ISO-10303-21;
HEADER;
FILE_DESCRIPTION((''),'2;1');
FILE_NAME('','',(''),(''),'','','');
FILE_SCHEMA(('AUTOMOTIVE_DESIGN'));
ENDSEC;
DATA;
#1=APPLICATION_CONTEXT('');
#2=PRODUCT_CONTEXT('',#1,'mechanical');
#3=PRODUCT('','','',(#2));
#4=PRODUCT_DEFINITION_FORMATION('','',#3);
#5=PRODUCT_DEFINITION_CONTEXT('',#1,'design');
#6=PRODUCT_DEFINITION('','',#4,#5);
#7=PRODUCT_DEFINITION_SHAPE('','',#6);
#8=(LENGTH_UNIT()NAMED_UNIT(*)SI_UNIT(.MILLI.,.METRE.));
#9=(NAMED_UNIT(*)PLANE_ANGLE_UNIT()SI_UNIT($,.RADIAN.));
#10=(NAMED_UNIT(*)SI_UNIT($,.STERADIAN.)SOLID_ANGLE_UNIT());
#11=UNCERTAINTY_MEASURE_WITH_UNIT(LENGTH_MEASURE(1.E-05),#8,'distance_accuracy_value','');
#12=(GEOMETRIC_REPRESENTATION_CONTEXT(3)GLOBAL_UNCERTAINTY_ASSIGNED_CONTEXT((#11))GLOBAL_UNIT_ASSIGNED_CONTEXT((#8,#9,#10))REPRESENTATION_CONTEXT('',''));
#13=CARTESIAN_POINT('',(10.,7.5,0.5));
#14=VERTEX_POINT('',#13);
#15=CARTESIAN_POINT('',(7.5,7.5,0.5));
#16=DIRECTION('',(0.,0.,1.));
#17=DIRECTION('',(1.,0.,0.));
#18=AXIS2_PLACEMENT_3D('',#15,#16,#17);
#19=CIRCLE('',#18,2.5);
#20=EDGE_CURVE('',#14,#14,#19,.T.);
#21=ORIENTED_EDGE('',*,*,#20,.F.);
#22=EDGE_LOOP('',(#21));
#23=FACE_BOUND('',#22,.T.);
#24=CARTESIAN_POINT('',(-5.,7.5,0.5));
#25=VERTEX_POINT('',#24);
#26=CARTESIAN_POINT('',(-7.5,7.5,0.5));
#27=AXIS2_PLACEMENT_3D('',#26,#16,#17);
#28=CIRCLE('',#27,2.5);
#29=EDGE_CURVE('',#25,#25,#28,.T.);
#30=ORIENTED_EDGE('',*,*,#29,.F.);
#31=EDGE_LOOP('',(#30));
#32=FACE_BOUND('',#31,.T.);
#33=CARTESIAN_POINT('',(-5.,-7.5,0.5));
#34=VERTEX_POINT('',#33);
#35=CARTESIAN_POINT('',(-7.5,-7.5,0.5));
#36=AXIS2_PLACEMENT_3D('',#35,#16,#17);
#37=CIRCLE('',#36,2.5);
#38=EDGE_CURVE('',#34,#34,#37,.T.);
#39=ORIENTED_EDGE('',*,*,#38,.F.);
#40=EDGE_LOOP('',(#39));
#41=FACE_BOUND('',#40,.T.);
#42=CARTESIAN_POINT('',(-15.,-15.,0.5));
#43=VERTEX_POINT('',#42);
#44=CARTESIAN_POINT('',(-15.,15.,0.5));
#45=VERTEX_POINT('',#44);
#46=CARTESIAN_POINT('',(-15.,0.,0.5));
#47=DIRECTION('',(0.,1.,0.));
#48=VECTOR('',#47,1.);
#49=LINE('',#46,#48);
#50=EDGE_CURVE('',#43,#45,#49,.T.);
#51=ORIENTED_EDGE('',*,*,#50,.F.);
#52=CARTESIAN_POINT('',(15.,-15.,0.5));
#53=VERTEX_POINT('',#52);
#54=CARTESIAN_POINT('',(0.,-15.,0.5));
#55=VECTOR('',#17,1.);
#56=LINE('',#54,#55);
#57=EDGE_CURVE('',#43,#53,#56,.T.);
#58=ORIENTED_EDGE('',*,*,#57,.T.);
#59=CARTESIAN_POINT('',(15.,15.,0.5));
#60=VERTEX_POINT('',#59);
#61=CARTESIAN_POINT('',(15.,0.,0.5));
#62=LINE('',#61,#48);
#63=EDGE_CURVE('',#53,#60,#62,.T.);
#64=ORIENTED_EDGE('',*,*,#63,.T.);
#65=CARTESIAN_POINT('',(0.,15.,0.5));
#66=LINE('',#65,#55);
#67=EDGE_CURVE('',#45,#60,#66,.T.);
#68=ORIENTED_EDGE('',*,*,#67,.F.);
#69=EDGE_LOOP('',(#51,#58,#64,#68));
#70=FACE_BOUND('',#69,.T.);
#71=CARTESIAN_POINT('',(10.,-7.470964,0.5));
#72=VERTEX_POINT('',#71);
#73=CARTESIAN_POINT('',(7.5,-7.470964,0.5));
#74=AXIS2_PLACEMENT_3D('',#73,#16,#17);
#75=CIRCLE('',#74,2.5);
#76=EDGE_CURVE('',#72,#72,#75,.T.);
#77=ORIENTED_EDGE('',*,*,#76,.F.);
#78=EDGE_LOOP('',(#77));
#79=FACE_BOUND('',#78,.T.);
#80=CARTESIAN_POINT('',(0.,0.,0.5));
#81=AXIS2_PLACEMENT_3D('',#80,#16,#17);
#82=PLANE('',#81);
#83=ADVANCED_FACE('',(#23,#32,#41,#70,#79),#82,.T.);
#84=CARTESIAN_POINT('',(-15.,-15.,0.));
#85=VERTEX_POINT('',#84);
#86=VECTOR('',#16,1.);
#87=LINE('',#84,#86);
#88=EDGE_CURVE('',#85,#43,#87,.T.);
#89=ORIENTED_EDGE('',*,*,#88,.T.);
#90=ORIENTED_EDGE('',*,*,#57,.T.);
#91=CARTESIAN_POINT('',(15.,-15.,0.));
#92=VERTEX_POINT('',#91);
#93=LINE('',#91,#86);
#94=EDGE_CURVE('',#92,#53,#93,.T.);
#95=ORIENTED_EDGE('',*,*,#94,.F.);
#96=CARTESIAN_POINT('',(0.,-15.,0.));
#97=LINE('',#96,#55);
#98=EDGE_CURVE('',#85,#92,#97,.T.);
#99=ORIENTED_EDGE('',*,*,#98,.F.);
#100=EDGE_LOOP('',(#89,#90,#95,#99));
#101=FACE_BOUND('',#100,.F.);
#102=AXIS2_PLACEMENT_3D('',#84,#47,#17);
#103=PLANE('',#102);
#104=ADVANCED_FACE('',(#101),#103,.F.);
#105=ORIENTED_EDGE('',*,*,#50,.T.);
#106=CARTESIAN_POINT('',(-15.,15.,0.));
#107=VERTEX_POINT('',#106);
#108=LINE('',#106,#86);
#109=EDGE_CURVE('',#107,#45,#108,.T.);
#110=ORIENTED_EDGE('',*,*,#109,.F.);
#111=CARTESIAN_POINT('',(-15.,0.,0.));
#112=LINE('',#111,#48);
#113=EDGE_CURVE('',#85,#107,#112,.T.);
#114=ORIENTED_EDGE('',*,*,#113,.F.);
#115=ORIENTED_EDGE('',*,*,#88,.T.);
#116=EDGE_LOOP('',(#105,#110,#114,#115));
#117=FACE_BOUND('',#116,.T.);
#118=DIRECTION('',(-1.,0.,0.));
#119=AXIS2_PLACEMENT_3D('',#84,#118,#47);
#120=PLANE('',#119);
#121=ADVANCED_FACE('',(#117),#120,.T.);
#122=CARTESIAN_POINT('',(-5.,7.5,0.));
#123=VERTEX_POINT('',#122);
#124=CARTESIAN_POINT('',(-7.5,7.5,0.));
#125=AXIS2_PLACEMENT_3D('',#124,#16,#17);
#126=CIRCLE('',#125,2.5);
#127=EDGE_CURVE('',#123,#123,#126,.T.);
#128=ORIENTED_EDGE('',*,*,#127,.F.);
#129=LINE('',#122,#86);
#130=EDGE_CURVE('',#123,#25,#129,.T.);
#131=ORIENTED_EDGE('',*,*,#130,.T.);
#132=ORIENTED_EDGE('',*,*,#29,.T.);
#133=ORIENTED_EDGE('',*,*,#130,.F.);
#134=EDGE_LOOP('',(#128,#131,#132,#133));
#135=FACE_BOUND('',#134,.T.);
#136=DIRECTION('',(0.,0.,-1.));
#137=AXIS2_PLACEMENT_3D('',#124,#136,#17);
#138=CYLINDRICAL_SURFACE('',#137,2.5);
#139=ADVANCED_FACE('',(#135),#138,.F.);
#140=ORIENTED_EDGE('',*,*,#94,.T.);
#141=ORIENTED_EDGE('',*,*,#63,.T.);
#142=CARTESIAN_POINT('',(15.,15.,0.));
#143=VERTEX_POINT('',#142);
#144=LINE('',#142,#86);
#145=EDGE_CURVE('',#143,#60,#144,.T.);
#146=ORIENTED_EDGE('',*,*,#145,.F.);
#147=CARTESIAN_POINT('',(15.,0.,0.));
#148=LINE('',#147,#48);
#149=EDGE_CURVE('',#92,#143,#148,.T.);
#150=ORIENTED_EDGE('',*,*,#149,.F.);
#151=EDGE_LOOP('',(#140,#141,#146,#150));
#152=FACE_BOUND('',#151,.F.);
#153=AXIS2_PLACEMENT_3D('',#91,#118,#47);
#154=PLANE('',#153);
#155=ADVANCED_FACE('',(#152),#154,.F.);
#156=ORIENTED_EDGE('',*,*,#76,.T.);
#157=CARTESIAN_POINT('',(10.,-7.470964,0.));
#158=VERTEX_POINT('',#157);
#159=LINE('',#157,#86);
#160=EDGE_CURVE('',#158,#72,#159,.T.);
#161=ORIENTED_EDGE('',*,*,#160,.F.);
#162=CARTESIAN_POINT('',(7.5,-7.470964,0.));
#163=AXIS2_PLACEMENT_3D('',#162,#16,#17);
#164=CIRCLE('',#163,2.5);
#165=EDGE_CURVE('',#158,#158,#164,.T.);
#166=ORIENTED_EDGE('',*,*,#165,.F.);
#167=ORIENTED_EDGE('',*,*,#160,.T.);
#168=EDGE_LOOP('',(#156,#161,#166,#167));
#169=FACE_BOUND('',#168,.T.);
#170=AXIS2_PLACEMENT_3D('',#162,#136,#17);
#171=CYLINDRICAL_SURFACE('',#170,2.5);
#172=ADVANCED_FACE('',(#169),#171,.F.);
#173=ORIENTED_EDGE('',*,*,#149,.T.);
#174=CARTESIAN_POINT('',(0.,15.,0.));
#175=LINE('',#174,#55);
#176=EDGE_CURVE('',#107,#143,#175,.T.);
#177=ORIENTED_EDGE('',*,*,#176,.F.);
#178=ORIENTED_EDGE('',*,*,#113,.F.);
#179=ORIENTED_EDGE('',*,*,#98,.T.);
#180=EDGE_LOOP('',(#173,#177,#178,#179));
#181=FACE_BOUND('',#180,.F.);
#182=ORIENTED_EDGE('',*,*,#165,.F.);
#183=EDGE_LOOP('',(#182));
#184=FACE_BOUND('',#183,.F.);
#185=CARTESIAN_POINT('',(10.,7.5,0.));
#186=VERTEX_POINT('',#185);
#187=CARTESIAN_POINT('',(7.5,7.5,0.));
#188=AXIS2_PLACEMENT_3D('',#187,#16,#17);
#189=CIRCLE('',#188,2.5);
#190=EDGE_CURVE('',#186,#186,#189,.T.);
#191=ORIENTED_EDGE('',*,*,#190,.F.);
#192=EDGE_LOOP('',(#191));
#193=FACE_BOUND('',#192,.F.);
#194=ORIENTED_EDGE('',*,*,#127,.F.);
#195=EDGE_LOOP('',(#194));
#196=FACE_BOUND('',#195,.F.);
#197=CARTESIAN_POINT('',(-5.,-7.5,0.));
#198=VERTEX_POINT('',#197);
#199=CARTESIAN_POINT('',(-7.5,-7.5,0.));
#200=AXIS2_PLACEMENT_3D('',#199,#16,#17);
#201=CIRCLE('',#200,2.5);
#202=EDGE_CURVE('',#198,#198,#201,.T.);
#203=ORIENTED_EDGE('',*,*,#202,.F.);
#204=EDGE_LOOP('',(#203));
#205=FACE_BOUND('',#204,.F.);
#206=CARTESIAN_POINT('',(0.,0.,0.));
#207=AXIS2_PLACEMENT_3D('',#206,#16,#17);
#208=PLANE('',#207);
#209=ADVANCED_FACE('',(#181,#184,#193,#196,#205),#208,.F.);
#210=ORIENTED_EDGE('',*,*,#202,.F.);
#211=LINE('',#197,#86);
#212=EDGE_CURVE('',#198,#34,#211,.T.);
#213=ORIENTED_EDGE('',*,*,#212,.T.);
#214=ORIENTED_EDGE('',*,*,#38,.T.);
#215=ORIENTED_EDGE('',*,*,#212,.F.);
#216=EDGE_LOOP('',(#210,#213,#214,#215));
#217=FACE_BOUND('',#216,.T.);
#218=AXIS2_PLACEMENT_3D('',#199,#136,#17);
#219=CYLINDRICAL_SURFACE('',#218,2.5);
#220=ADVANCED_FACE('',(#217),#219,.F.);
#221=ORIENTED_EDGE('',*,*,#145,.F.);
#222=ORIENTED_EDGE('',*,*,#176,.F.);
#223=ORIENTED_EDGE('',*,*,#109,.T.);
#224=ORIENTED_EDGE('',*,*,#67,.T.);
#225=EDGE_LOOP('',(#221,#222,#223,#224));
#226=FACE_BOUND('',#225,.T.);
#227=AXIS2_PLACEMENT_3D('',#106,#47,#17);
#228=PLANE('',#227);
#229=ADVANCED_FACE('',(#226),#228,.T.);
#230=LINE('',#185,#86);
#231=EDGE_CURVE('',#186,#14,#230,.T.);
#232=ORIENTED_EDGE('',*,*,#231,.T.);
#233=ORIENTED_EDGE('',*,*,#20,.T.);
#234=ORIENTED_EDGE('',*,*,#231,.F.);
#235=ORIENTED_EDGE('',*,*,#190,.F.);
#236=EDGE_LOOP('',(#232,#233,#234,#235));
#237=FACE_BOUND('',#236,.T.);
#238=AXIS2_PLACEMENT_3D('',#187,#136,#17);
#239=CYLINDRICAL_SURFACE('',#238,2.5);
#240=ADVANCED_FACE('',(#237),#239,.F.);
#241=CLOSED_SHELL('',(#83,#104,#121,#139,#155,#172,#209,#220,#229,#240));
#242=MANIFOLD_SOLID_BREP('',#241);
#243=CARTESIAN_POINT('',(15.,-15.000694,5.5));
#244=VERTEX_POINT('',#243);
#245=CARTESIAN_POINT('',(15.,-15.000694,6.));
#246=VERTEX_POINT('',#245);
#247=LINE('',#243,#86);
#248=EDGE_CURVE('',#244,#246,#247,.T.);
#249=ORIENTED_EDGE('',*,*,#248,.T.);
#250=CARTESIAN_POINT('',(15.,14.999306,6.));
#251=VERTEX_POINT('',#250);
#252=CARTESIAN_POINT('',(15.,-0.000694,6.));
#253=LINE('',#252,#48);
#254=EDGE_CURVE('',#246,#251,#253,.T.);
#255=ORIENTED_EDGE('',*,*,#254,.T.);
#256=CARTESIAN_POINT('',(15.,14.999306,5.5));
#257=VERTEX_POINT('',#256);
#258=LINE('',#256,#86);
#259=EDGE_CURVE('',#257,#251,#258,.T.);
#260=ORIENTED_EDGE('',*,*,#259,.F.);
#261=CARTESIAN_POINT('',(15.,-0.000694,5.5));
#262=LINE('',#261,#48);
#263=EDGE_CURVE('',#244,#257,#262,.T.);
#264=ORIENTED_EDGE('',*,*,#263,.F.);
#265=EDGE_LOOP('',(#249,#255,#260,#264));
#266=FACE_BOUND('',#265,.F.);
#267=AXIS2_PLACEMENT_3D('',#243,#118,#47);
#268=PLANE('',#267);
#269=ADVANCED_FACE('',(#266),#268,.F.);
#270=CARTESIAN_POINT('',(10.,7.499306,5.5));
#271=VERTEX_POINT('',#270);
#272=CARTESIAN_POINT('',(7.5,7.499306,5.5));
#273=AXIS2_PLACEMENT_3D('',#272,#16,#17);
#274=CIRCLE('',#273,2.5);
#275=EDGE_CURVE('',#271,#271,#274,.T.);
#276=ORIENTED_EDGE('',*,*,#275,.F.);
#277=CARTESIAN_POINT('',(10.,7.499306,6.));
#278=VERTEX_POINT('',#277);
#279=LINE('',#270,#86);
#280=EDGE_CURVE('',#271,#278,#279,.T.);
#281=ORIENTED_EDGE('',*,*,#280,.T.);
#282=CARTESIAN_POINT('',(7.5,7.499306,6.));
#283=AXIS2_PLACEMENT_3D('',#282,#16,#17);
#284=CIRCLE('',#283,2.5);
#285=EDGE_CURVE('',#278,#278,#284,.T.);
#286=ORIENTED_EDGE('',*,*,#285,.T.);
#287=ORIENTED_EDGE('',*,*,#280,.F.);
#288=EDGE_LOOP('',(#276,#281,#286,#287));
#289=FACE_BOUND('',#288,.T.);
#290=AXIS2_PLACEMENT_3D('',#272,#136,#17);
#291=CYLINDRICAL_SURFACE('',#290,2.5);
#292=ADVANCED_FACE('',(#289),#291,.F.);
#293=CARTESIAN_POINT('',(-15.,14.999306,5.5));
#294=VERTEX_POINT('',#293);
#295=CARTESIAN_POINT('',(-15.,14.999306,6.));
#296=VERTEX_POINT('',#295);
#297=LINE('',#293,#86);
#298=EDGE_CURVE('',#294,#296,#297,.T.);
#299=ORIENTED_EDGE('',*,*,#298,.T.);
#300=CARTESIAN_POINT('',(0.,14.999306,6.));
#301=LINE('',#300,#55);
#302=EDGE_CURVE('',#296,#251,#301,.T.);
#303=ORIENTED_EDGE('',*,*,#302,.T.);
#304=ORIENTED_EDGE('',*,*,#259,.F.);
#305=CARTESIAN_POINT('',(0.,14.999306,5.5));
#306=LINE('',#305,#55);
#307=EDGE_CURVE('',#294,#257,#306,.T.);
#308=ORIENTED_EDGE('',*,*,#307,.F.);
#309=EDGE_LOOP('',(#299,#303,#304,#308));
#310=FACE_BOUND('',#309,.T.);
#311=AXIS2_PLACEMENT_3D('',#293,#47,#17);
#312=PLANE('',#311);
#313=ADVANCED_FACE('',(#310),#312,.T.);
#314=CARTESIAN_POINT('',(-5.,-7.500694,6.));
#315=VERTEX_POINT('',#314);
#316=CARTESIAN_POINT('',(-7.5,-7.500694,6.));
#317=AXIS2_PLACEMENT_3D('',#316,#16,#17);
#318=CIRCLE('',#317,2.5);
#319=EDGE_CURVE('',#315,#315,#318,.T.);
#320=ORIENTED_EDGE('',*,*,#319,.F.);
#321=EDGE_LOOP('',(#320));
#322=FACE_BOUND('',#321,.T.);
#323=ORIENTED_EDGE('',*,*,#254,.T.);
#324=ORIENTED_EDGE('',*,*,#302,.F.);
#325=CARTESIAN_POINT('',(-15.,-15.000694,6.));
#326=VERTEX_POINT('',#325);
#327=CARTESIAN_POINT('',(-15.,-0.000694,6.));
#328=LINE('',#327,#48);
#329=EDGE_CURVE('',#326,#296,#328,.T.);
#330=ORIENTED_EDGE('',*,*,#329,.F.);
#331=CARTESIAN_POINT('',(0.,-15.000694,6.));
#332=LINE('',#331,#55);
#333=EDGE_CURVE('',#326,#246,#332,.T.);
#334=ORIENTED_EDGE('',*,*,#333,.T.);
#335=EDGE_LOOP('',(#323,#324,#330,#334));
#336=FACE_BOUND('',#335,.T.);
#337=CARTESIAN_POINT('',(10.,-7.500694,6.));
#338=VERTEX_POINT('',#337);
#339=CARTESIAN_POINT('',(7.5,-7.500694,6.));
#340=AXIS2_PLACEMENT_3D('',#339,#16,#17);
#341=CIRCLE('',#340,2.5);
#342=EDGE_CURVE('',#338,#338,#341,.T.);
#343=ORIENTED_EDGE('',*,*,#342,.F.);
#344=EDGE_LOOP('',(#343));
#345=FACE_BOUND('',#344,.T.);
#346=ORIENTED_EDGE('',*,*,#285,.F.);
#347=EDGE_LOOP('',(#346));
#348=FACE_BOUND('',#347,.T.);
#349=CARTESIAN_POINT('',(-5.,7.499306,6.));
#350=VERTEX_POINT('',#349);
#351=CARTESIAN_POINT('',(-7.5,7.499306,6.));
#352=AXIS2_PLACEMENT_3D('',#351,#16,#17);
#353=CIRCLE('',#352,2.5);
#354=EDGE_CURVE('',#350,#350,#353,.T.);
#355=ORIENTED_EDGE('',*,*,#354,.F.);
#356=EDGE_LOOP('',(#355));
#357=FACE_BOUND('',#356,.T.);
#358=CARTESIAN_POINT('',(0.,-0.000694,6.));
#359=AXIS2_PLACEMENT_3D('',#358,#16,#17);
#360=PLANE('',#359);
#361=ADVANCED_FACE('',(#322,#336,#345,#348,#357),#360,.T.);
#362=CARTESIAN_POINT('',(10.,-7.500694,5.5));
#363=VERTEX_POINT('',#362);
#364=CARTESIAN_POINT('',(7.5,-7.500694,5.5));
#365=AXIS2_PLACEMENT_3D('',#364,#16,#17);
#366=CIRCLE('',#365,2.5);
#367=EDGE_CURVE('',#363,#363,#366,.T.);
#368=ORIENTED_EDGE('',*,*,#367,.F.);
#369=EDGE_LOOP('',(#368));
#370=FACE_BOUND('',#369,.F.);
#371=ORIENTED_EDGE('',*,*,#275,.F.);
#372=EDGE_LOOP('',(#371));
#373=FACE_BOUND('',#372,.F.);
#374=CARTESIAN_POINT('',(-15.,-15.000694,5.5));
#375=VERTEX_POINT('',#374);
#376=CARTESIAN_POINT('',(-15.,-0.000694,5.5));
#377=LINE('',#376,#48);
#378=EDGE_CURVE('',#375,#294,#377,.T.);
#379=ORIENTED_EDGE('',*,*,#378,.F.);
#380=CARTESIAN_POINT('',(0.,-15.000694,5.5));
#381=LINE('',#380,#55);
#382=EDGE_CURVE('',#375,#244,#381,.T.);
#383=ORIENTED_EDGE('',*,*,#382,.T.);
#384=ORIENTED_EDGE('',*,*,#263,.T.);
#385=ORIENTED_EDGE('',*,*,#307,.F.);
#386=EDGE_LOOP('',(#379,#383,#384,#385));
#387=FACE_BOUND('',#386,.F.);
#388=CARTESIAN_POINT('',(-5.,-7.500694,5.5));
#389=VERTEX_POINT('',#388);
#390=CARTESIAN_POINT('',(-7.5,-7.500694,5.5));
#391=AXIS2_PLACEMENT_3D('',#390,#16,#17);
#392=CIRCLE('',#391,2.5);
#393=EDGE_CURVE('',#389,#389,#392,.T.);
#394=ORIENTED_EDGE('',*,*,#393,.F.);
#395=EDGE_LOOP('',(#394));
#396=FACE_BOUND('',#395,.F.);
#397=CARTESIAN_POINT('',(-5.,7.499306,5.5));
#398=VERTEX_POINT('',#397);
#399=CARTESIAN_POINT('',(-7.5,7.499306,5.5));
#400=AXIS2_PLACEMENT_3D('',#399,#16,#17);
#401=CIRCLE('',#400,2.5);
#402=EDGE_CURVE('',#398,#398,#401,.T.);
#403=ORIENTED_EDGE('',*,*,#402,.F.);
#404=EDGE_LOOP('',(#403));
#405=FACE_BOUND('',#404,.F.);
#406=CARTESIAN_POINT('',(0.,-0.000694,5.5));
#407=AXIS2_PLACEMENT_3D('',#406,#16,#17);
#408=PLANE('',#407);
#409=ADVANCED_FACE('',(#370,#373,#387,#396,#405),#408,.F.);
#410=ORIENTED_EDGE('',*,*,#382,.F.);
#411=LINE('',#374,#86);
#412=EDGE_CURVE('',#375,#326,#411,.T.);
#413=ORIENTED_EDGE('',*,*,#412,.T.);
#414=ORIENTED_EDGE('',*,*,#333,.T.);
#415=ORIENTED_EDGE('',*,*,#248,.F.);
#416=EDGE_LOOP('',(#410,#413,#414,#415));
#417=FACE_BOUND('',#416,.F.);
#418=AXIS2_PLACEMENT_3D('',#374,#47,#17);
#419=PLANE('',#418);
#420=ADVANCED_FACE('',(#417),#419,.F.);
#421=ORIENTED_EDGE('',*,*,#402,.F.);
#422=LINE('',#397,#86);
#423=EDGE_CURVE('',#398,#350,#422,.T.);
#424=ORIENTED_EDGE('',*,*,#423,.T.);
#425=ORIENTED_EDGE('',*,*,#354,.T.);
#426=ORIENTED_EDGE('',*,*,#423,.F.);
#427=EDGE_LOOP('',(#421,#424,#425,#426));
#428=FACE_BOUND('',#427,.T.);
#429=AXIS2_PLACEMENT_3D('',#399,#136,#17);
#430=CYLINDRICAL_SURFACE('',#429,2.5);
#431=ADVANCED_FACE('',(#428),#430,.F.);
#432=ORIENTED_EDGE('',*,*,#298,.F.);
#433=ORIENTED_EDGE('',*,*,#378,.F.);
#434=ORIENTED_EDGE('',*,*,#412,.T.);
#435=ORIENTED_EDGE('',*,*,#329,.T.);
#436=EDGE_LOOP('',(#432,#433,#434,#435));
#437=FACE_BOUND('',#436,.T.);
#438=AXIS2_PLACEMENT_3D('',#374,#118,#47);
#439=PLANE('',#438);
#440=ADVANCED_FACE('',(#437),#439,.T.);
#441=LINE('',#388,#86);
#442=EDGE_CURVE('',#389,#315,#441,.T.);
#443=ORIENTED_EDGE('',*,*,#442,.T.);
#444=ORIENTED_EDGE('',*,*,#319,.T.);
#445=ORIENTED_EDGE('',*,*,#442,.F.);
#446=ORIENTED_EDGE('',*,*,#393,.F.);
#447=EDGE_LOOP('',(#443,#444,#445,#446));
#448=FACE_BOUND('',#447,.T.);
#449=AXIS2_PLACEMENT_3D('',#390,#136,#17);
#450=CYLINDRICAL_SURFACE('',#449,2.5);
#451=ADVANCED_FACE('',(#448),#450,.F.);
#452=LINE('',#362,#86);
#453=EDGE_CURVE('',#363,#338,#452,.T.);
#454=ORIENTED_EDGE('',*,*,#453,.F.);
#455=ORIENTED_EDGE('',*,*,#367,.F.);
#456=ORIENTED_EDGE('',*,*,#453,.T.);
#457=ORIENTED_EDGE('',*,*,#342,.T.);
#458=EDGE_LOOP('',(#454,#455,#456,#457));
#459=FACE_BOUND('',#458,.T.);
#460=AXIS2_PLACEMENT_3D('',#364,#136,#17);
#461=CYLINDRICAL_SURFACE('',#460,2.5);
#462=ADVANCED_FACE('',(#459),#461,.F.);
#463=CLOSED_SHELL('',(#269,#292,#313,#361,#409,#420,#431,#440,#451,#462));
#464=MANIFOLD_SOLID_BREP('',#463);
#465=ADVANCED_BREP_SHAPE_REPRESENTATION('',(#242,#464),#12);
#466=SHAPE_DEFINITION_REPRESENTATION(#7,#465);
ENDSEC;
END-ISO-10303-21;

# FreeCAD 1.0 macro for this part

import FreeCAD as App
import Part
import Sketcher
from FreeCAD import Vector

doc = App.newDocument("Part")
body = doc.addObject("PartDesign::Body", "Body")

# Sketch on XY plane
sketch1 = body.newObject("Sketcher::SketchObject", "Sketch")
sketch1.AttachmentSupport = (doc.getObject("XY_Plane"), [""])
sketch1.MapMode = "FlatFace"
sketch1.addGeometry([
    Part.LineSegment(Vector(-15, 15, 0), Vector(-15, -15, 0)),  # 0
    Part.LineSegment(Vector(-15, -15, 0), Vector(15, -15, 0)),  # 1
    Part.LineSegment(Vector(15, -15, 0), Vector(15, 15, 0)),  # 2
    Part.LineSegment(Vector(15, 15, 0), Vector(-15, 15, 0)),  # 3
    Part.Circle(Vector(-7.5, -7.5, 0), Vector(0, 0, 1), 2.5),  # 4
    Part.Circle(Vector(7.5, -7.5, 0), Vector(0, 0, 1), 2.5),  # 5
    Part.Circle(Vector(-7.5, 7.5, 0), Vector(0, 0, 1), 2.5),  # 6
    Part.Circle(Vector(7.5, 7.5, 0), Vector(0, 0, 1), 2.5),  # 7
], False)
sketch1.addConstraint([
    Sketcher.Constraint("Coincident", 0, 2, 1, 1),
    Sketcher.Constraint("Coincident", 1, 2, 2, 1),
    Sketcher.Constraint("Coincident", 2, 2, 3, 1),
    Sketcher.Constraint("Coincident", 3, 2, 0, 1),
    Sketcher.Constraint("Vertical", 0),
    Sketcher.Constraint("Horizontal", 1),
    Sketcher.Constraint("Vertical", 2),
    Sketcher.Constraint("Horizontal", 3),
    Sketcher.Constraint("Equal", 4, 5),
    Sketcher.Constraint("Equal", 5, 6),
    Sketcher.Constraint("Equal", 6, 7),
    Sketcher.Constraint("Symmetric", 4, 3, 7, 3, -1, 1),
    Sketcher.Constraint("Symmetric", 0, 2, 2, 2, -1, 1),
    Sketcher.Constraint("Symmetric", 6, 3, 7, 3, -2),
    Sketcher.Constraint("Vertical", 5, 3, 7, 3),
    Sketcher.Constraint("Equal", 3, 0),
    Sketcher.Constraint("Diameter", 4, 5.0),
    Sketcher.Constraint("DistanceX", 1, 1, 1, 2, 30.0),
    Sketcher.Constraint("DistanceX", 4, 3, 5, 3, 15.0),
    Sketcher.Constraint("DistanceY", 4, 3, 6, 3, 15.0),
    Sketcher.Constraint("DistanceY", 5, 3, -1, 1, 7.470964),
])
pad1 = body.newObject("PartDesign::Pad", "Pad")
pad1.Profile = sketch1
pad1.Length = 0.5
body2 = doc.addObject("PartDesign::Body", "Body001")

# Sketch on XY plane
sketch2 = body2.newObject("Sketcher::SketchObject", "Sketch001")
sketch2.AttachmentSupport = (doc.getObject("XY_Plane001"), [""])
sketch2.MapMode = "FlatFace"
sketch2.AttachmentOffset = App.Placement(Vector(0, 0, 5.5), App.Rotation())
sketch2.addGeometry([
    Part.LineSegment(Vector(-15, 15, 0), Vector(-15, -15, 0)),  # 0
    Part.LineSegment(Vector(-15, -15, 0), Vector(15, -15, 0)),  # 1
    Part.LineSegment(Vector(15, -15, 0), Vector(15, 15, 0)),  # 2
    Part.LineSegment(Vector(15, 15, 0), Vector(-15, 15, 0)),  # 3
    Part.Circle(Vector(-7.5, -7.5, 0), Vector(0, 0, 1), 2.5),  # 4
    Part.Circle(Vector(7.5, -7.5, 0), Vector(0, 0, 1), 2.5),  # 5
    Part.Circle(Vector(-7.5, 7.5, 0), Vector(0, 0, 1), 2.5),  # 6
    Part.Circle(Vector(7.5, 7.5, 0), Vector(0, 0, 1), 2.5),  # 7
], False)
sketch2.addConstraint([
    Sketcher.Constraint("Coincident", 0, 2, 1, 1),
    Sketcher.Constraint("Coincident", 1, 2, 2, 1),
    Sketcher.Constraint("Coincident", 2, 2, 3, 1),
    Sketcher.Constraint("Coincident", 3, 2, 0, 1),
    Sketcher.Constraint("Vertical", 0),
    Sketcher.Constraint("Horizontal", 1),
    Sketcher.Constraint("Vertical", 2),
    Sketcher.Constraint("Horizontal", 3),
    Sketcher.Constraint("Equal", 4, 5),
    Sketcher.Constraint("Equal", 5, 6),
    Sketcher.Constraint("Equal", 6, 7),
    Sketcher.Constraint("Symmetric", 4, 3, 5, 3, -2),
    Sketcher.Constraint("Symmetric", 6, 3, 7, 3, -2),
    Sketcher.Constraint("Vertical", 4, 3, 6, 3),
    Sketcher.Constraint("Equal", 3, 0),
    Sketcher.Constraint("Diameter", 4, 5.0),
    Sketcher.Constraint("DistanceX", 1, 1, 1, 2, 30.0),
    Sketcher.Constraint("DistanceX", 0, 2, -1, 1, 15.0),
    Sketcher.Constraint("DistanceX", 4, 3, 5, 3, 15.0),
    Sketcher.Constraint("DistanceY", 4, 3, 6, 3, 15.0),
    Sketcher.Constraint("DistanceY", 0, 2, 4, 3, 7.5),
    Sketcher.Constraint("DistanceY", 4, 3, -1, 1, 7.500694),
])
pad2 = body2.newObject("PartDesign::Pad", "Pad001")
pad2.Profile = sketch2
pad2.Length = 0.5

doc.recompute()
